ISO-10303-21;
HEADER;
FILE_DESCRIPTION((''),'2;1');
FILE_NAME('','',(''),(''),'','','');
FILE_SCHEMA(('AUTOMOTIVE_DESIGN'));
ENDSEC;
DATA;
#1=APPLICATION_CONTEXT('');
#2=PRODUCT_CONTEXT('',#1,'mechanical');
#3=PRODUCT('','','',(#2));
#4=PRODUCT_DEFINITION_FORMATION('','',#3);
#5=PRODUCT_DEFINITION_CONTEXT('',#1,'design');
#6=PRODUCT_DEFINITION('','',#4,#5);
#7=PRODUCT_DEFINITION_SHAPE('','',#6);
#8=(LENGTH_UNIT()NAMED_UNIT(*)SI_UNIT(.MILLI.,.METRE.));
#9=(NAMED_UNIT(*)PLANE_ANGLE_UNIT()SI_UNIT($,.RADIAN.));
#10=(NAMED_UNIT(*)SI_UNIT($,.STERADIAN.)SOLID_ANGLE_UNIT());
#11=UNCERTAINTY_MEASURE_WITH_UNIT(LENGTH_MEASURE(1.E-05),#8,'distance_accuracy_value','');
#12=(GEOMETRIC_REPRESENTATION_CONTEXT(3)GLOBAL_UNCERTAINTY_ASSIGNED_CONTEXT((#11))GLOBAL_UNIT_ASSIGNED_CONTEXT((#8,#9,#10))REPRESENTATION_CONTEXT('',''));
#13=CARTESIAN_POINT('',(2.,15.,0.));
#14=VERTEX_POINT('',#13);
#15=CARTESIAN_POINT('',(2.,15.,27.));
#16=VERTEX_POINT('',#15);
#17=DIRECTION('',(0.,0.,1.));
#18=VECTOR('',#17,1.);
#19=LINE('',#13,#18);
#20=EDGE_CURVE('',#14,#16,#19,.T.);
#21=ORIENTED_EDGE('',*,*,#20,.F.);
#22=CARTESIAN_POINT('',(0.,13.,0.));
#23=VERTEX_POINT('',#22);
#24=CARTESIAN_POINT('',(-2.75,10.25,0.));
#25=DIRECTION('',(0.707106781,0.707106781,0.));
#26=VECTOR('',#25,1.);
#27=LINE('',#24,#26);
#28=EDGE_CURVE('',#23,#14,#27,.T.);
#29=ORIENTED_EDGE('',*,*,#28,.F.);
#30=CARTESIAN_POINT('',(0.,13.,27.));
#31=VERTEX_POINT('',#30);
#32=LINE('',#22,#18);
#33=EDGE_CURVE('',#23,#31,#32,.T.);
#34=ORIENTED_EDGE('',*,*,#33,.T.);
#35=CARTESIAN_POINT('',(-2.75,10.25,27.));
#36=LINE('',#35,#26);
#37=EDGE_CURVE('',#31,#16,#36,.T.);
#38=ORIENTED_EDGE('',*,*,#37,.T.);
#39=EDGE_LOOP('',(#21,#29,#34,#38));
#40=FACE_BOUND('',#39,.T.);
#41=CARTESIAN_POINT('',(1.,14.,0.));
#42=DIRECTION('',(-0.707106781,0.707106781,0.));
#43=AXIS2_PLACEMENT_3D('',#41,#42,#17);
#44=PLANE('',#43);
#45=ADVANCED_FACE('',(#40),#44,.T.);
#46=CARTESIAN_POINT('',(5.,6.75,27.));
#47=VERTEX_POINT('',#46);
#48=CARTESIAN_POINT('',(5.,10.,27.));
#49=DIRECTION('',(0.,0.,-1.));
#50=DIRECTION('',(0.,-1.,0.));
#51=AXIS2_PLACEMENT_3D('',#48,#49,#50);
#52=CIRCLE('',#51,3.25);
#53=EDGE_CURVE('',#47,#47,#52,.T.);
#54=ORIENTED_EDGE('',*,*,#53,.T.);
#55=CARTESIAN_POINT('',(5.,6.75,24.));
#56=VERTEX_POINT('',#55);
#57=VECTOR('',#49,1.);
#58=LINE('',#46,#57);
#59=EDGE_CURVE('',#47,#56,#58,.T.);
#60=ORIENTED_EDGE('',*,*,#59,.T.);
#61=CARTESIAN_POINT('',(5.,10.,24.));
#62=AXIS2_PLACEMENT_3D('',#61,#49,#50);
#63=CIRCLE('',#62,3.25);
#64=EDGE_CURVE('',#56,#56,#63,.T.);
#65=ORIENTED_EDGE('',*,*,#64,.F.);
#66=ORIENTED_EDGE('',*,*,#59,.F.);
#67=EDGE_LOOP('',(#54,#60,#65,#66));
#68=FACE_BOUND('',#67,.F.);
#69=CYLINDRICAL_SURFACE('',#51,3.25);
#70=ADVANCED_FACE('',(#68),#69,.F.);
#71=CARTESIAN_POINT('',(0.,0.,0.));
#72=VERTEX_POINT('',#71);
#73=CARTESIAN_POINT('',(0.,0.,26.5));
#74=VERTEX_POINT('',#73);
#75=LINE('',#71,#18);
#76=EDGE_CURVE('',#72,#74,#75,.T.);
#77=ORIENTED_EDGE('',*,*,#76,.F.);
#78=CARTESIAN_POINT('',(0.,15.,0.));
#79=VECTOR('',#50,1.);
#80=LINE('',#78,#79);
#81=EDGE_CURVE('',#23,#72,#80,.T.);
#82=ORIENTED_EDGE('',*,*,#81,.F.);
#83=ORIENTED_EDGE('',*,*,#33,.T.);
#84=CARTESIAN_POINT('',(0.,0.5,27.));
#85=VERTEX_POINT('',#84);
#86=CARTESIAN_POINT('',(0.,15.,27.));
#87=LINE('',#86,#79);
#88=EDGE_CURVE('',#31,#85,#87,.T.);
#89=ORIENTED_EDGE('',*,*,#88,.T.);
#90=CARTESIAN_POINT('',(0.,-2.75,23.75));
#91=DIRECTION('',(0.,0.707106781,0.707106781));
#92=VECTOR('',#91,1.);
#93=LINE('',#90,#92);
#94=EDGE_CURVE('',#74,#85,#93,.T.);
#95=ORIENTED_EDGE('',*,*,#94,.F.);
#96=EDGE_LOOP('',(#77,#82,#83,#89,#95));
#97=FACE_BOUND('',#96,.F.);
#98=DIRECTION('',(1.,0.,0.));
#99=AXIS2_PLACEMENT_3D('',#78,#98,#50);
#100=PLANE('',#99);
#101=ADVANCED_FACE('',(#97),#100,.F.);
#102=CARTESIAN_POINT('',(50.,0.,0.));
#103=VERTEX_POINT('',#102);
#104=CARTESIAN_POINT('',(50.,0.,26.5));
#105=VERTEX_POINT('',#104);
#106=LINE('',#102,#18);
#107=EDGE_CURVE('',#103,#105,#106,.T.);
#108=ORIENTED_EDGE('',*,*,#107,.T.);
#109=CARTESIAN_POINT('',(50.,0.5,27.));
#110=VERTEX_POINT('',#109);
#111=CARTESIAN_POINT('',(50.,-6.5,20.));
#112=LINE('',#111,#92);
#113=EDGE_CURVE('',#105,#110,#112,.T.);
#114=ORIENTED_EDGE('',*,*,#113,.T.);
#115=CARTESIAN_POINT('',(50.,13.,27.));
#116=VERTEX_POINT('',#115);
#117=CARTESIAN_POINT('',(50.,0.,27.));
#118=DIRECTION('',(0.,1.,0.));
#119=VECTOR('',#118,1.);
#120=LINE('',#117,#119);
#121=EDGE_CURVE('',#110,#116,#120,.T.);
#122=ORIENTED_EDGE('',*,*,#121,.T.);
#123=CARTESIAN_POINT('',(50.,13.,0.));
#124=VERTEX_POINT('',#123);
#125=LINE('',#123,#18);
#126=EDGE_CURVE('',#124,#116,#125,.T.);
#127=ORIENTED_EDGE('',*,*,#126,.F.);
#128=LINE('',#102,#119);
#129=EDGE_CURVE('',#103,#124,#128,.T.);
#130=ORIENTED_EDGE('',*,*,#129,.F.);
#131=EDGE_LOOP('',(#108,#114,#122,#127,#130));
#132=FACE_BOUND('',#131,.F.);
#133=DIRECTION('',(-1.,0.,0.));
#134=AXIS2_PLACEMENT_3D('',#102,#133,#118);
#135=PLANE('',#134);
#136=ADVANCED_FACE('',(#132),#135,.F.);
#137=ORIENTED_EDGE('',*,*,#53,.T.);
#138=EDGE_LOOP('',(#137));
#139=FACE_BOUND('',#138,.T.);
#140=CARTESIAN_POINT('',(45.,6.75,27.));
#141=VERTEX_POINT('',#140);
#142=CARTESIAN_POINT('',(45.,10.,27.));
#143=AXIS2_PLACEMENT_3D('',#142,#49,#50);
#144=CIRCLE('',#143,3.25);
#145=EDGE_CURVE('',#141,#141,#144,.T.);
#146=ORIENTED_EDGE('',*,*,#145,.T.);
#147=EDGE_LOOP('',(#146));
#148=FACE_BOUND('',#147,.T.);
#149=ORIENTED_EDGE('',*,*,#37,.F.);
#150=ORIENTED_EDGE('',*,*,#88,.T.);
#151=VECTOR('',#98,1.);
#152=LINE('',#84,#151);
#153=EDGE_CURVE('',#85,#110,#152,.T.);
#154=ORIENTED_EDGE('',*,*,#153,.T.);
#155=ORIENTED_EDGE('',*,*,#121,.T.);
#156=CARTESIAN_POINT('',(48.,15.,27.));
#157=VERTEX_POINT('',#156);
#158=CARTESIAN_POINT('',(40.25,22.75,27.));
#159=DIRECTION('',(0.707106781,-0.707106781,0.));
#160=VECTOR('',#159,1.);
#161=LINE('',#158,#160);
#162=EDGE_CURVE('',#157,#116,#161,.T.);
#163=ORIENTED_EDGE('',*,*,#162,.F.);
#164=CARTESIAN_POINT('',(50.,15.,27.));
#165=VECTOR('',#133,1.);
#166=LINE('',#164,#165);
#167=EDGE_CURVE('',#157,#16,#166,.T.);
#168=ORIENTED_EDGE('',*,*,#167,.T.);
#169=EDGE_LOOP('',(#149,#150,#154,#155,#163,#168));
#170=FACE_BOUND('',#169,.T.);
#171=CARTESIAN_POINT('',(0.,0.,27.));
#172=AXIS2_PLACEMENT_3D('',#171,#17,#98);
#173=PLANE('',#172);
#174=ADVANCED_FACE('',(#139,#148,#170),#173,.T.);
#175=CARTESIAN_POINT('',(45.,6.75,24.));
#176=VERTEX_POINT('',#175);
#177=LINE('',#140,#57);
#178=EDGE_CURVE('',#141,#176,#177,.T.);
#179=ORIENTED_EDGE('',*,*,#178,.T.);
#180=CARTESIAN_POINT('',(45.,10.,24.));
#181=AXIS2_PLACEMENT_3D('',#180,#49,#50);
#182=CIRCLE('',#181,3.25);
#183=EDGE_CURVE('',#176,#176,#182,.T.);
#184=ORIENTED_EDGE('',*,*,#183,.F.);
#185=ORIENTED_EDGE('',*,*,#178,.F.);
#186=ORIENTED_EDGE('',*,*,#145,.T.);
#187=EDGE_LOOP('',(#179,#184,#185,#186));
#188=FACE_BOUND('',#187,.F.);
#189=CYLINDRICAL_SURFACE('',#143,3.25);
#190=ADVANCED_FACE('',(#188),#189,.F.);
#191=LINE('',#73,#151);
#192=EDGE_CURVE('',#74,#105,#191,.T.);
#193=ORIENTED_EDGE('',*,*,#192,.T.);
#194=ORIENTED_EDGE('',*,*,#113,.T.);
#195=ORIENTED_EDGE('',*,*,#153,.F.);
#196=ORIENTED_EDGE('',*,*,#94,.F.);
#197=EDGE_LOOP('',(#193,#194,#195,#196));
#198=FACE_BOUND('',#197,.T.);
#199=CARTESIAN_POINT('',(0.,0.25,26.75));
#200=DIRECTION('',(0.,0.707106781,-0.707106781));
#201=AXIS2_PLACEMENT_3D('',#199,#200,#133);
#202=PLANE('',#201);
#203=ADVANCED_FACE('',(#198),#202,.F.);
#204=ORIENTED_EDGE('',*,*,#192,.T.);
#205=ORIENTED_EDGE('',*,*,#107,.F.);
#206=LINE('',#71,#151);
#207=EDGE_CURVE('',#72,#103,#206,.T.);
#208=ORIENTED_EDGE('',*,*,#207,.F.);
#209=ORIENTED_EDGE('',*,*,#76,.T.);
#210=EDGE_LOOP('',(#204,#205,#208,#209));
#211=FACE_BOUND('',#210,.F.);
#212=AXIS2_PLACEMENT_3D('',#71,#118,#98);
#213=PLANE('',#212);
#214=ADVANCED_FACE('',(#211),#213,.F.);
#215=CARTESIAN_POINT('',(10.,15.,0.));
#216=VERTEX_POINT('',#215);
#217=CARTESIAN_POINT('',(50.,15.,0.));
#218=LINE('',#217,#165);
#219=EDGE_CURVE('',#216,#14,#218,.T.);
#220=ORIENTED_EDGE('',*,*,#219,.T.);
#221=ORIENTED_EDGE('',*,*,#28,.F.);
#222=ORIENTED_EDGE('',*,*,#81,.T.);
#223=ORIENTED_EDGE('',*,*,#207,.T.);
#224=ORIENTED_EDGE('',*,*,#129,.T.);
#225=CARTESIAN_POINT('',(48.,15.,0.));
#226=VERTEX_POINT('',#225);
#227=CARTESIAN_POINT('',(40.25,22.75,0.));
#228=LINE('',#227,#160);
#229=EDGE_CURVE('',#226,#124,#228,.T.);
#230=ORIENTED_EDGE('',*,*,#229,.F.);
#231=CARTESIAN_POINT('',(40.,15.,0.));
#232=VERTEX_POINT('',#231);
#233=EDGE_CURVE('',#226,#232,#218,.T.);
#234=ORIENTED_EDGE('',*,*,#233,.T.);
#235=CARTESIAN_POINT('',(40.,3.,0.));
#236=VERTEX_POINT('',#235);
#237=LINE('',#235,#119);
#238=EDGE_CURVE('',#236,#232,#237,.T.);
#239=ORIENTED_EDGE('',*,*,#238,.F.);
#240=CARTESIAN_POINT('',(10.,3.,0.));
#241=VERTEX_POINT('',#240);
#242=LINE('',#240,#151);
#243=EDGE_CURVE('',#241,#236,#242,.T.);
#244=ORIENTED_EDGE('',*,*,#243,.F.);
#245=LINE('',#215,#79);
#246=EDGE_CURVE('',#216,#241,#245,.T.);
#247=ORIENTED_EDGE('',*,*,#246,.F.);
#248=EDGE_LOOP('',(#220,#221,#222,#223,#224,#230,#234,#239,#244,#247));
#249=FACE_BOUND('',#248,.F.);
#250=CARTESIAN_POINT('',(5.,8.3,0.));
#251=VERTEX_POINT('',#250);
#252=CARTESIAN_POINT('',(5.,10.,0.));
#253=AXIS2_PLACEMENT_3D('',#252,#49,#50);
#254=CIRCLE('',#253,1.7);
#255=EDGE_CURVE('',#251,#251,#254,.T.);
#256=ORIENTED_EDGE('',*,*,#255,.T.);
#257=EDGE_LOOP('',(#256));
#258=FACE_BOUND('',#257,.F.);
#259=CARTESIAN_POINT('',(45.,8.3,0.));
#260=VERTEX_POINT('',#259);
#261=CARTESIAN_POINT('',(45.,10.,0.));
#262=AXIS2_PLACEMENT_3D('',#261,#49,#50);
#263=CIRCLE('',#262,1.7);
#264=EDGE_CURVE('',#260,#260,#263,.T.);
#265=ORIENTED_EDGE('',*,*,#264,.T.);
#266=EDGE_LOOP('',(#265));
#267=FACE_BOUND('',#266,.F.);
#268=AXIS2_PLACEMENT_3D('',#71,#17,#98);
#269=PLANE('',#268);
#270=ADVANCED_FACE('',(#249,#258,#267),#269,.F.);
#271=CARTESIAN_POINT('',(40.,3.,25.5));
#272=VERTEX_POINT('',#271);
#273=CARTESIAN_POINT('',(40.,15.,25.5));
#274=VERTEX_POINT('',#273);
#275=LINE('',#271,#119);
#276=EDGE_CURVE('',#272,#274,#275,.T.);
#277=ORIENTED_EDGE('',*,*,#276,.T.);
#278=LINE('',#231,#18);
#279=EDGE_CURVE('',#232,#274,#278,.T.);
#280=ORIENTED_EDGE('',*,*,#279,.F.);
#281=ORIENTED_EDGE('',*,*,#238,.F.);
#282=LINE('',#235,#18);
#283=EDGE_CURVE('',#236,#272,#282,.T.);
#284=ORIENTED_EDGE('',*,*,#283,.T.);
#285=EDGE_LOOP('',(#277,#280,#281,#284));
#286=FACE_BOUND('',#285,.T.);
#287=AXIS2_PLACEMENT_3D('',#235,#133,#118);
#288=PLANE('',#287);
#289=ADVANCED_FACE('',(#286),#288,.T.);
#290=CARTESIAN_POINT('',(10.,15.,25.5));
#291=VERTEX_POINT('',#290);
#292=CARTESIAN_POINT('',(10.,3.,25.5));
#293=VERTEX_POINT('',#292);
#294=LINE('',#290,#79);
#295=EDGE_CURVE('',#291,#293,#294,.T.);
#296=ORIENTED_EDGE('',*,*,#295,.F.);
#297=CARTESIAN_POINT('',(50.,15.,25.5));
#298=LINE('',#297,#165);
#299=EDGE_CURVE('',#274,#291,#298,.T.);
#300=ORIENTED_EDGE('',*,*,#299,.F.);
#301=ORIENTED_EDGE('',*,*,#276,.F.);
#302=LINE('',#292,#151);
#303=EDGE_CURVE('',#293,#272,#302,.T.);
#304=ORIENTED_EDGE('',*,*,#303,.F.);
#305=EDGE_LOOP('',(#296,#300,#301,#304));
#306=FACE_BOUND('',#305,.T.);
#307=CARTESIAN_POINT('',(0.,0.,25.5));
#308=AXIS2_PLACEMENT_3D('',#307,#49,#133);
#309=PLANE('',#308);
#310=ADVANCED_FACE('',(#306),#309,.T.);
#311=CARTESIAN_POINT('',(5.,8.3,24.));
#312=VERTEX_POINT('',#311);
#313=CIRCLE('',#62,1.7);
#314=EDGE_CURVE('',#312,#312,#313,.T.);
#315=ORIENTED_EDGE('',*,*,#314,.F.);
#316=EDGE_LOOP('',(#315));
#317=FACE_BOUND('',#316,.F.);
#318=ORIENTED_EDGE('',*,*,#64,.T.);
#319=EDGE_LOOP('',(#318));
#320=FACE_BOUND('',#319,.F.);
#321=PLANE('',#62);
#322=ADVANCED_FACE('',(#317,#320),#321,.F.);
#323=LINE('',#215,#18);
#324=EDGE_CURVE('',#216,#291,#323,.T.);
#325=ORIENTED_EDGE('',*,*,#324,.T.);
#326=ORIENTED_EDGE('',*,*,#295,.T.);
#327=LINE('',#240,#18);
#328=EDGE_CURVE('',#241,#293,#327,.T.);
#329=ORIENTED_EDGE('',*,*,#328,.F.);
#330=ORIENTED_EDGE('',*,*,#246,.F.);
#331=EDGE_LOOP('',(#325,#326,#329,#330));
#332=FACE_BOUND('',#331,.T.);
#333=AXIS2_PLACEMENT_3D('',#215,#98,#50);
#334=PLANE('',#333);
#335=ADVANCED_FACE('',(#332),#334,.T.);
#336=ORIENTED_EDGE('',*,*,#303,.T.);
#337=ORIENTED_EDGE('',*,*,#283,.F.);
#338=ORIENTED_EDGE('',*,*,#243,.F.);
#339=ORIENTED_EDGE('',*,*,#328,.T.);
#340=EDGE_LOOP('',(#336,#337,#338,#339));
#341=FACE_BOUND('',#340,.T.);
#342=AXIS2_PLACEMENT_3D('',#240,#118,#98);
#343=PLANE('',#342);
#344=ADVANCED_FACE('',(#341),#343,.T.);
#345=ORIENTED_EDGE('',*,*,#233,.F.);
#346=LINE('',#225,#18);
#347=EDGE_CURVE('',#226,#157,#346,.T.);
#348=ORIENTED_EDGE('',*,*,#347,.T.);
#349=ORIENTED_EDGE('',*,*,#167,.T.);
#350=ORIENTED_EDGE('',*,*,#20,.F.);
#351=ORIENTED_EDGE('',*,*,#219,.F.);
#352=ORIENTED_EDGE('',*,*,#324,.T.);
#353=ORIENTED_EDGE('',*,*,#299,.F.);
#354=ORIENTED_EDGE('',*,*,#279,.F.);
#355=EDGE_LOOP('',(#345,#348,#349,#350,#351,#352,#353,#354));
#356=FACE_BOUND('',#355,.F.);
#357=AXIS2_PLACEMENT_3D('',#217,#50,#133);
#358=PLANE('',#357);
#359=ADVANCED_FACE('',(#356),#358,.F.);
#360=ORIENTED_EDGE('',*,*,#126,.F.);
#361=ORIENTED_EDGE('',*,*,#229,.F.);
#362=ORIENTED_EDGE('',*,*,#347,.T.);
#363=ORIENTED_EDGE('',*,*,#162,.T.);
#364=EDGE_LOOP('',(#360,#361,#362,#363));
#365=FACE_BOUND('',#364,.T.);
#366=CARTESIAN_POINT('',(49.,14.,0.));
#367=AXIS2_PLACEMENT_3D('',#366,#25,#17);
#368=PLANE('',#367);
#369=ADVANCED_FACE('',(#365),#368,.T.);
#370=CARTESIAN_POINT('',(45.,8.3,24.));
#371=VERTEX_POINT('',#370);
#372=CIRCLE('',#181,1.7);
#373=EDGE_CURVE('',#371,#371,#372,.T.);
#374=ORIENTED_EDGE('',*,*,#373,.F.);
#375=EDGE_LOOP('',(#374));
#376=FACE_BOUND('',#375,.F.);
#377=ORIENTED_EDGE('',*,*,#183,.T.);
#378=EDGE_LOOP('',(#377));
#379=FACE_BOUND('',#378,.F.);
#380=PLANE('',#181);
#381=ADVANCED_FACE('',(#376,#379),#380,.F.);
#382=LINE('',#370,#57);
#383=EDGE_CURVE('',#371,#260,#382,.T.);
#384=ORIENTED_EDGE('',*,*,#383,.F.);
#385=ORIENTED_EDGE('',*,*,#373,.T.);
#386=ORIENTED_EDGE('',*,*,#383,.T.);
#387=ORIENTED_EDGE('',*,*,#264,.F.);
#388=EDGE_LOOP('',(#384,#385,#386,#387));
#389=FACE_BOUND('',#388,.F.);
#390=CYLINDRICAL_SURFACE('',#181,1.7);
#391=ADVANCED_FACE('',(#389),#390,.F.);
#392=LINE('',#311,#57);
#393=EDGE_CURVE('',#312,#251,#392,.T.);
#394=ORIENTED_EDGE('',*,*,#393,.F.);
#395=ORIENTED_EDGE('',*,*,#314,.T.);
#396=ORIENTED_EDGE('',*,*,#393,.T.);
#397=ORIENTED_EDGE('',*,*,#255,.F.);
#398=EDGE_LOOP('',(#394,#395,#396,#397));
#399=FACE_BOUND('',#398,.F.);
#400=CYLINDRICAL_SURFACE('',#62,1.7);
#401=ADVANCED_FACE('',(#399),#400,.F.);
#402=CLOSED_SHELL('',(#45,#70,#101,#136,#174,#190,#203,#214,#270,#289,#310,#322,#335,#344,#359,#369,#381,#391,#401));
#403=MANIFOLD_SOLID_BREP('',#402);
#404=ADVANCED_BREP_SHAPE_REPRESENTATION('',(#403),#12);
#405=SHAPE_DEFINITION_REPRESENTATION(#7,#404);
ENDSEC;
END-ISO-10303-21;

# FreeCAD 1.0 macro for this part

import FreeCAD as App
import Part
import Sketcher

V = App.Vector


def edges_at(feature, points):
    """Names of the edges that pass closest to the given points."""
    edges = feature.Shape.Edges
    near = lambda p: min(range(len(edges)), key=lambda i: edges[i].distToShape(Part.Vertex(*p))[0])
    return sorted({f"Edge{near(p) + 1}" for p in points})


def add_polygon(sketch, points):
    """Adds a closed chain of lines whose ends are joined by coincident constraints."""
    first, n = sketch.GeometryCount, len(points)
    for a, b in zip(points, points[1:] + points[:1]):
        sketch.addGeometry(Part.LineSegment(App.Vector(*a, 0), App.Vector(*b, 0)), False)
    for i in range(n):
        sketch.addConstraint(Sketcher.Constraint("Coincident", first + i, 2, first + (i + 1) % n, 1))

doc = App.newDocument("Part")
params = doc.addObject("Spreadsheet::Sheet", "Params")
for row, (alias, value) in enumerate([
    ("sketch1_width", "50 mm"),
    ("sketch1_height", "15 mm"),
    ("pad1_length", "27 mm"),
    ("sketch2_diameter", "3.4 mm"),
    ("hole_diameter", "3.4 mm"),
    ("hole_cbore_diameter", "6.5 mm"),
    ("hole_cbore_depth", "3 mm"),
    ("sketch3_diameter", "3.4 mm"),
    ("hole2_diameter", "3.4 mm"),
    ("hole2_cbore_diameter", "6.5 mm"),
    ("hole2_cbore_depth", "3 mm"),
    ("chamfer_size", "0.5 mm"),
    ("sketch4_height", "12 mm"),
    ("sketch4_width", "30 mm"),
    ("pocket1_length", "25.5 mm"),
    ("chamfer2_size", "2 mm"),
], start=1):
    params.set(f"A{row}", alias)
    params.set(f"B{row}", "=" + value)
    params.setAlias(f"B{row}", alias)

body = doc.addObject("PartDesign::Body", "Body")

sketch1 = body.newObject("Sketcher::SketchObject", "Sketch")
sketch1.AttachmentSupport = (doc.getObject("XY_Plane"), [""])
sketch1.MapMode = "FlatFace"
add_polygon(sketch1, [(0, 15), (0, 0), (50, 0), (50, 15)])
sketch1.addConstraint([
    Sketcher.Constraint("Vertical", 0),
    Sketcher.Constraint("Horizontal", 1),
    Sketcher.Constraint("Vertical", 2),
    Sketcher.Constraint("Horizontal", 3),
    Sketcher.Constraint("Coincident", 0, 2, -1, 1),
    Sketcher.Constraint("DistanceX", 1, 1, 1, 2, 50.0),
    Sketcher.Constraint("DistanceY", 0, 2, 0, 1, 15.0),
])
sketch1.setExpression("Constraints[9]", "Params.sketch1_width")
sketch1.setExpression("Constraints[10]", "Params.sketch1_height")
pad1 = body.newObject("PartDesign::Pad", "Pad")
pad1.Profile = sketch1
pad1.setExpression("Length", "Params.pad1_length")

sketch2 = body.newObject("Sketcher::SketchObject", "Sketch001")
sketch2.AttachmentSupport = (doc.getObject("XY_Plane"), [""])
sketch2.MapMode = "FlatFace"
sketch2.AttachmentOffset = App.Placement(V(0, 0, 27), App.Rotation())
sketch2.addGeometry(Part.Circle(V(45, 10, 0), V(0, 0, 1), 1.7), False)
sketch2.addConstraint([
    Sketcher.Constraint("Diameter", 0, 3.4),
    Sketcher.Constraint("DistanceX", -1, 1, 0, 3, 45.0),
    Sketcher.Constraint("DistanceY", -1, 1, 0, 3, 10.0),
])
sketch2.setExpression("Constraints[0]", "Params.sketch2_diameter")
doc.recompute()
hole = body.newObject("PartDesign::Hole", "Hole")
hole.Profile = sketch2
hole.ThreadType = "None"
hole.setExpression("Diameter", "Params.hole_diameter")
hole.DepthType = "ThroughAll"
hole.HoleCutType = "Counterbore"
hole.setExpression("HoleCutDiameter", "Params.hole_cbore_diameter")
hole.setExpression("HoleCutDepth", "Params.hole_cbore_depth")

sketch3 = body.newObject("Sketcher::SketchObject", "Sketch002")
sketch3.AttachmentSupport = (doc.getObject("XY_Plane"), [""])
sketch3.MapMode = "FlatFace"
sketch3.AttachmentOffset = App.Placement(V(0, 0, 27), App.Rotation())
sketch3.addGeometry(Part.Circle(V(5, 10, 0), V(0, 0, 1), 1.7), False)
sketch3.addConstraint([
    Sketcher.Constraint("Diameter", 0, 3.4),
    Sketcher.Constraint("DistanceX", -1, 1, 0, 3, 5.0),
    Sketcher.Constraint("DistanceY", -1, 1, 0, 3, 10.0),
])
sketch3.setExpression("Constraints[0]", "Params.sketch3_diameter")
doc.recompute()
hole2 = body.newObject("PartDesign::Hole", "Hole001")
hole2.Profile = sketch3
hole2.ThreadType = "None"
hole2.setExpression("Diameter", "Params.hole2_diameter")
hole2.DepthType = "ThroughAll"
hole2.HoleCutType = "Counterbore"
hole2.setExpression("HoleCutDiameter", "Params.hole2_cbore_diameter")
hole2.setExpression("HoleCutDepth", "Params.hole2_cbore_depth")
doc.recompute()

chamfer = body.newObject("PartDesign::Chamfer", "Chamfer")
chamfer.Base = (hole2, edges_at(hole2, [(25, 0, 27)]))
chamfer.setExpression("Size", "Params.chamfer_size")

sketch4 = body.newObject("Sketcher::SketchObject", "Sketch003")
sketch4.AttachmentSupport = (doc.getObject("XY_Plane"), [""])
sketch4.MapMode = "FlatFace"
add_polygon(sketch4, [(10, 15), (40, 15), (40, 3), (10, 3)])
sketch4.addConstraint([
    Sketcher.Constraint("Horizontal", 0),
    Sketcher.Constraint("Vertical", 1),
    Sketcher.Constraint("Horizontal", 2),
    Sketcher.Constraint("Vertical", 3),
    Sketcher.Constraint("DistanceY", 1, 2, 1, 1, 12.0),
    Sketcher.Constraint("DistanceX", -1, 1, 2, 2, 10.0),
    Sketcher.Constraint("DistanceX", 0, 1, 0, 2, 30.0),
    Sketcher.Constraint("DistanceY", -1, 1, 0, 2, 15.0),
])
sketch4.setExpression("Constraints[8]", "Params.sketch4_height")
sketch4.setExpression("Constraints[10]", "Params.sketch4_width")
pocket1 = body.newObject("PartDesign::Pocket", "Pocket")
pocket1.Profile = sketch4
pocket1.setExpression("Length", "Params.pocket1_length")
pocket1.Reversed = True
doc.recompute()

chamfer2 = body.newObject("PartDesign::Chamfer", "Chamfer001")
chamfer2.Base = (pocket1, edges_at(pocket1, [(50, 15, 13.5), (0, 15, 13.5)]))
chamfer2.setExpression("Size", "Params.chamfer2_size")

doc.recompute()
